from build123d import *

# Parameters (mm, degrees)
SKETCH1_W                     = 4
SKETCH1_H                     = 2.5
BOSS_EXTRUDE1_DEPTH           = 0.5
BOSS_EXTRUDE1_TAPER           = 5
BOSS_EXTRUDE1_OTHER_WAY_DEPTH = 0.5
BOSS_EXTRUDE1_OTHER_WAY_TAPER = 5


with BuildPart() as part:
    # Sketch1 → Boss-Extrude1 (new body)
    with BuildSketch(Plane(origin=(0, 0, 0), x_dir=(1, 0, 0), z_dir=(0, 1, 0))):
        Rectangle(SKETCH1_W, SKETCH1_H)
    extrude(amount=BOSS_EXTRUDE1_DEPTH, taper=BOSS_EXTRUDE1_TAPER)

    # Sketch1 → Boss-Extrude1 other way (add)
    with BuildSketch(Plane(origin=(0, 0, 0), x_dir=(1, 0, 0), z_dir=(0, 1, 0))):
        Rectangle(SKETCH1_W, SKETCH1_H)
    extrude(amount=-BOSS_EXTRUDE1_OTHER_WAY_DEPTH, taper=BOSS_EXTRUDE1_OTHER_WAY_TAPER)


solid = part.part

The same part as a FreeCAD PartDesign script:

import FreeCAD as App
import Part
import Sketcher

V = App.Vector
Q = App.Units.Quantity


def add_polygon(sketch, points):
    """Adds a closed chain of lines whose ends are joined by coincident constraints."""
    first, n = sketch.GeometryCount, len(points)
    for a, b in zip(points, points[1:] + points[:1]):
        sketch.addGeometry(Part.LineSegment(App.Vector(*a, 0), App.Vector(*b, 0)), False)
    for i in range(n):
        sketch.addConstraint(Sketcher.Constraint("Coincident", first + i, 2, first + (i + 1) % n, 1))

doc = App.newDocument("Part")
body = doc.addObject("PartDesign::Body", "Body")

# Sketch on XZ plane
sketch1 = doc.addObject("Sketcher::SketchObject", "Sketch")
body.addObject(sketch1)
sketch1.AttachmentSupport = (doc.XZ_Plane, [""])
sketch1.MapMode = "FlatFace"
add_polygon(sketch1, [(-2, -1.2), (-2, 1.2), (2, 1.2), (2, -1.2)])  # lines 0-3
sketch1.addConstraint(Sketcher.Constraint("Vertical", 0))
sketch1.addConstraint(Sketcher.Constraint("Horizontal", 1))
sketch1.addConstraint(Sketcher.Constraint("Vertical", 2))
sketch1.addConstraint(Sketcher.Constraint("Horizontal", 3))
sketch1.addConstraint(Sketcher.Constraint("Symmetric", 0, 2, 2, 2, -1, 1))
sketch1.addConstraint(Sketcher.Constraint("DistanceX", 1, 1, 1, 2, Q("4 mm")))
sketch1.addConstraint(Sketcher.Constraint("DistanceY", 0, 1, 0, 2, Q("2.5 mm")))
pad1 = doc.addObject("PartDesign::Pad", "Pad")
body.addObject(pad1)
pad1.Profile = sketch1
pad1.Length = 0.5
pad1.Reversed = True
pad1.TaperAngle = -5

# Sketch on XZ plane
sketch2 = doc.addObject("Sketcher::SketchObject", "Sketch001")
body.addObject(sketch2)
sketch2.AttachmentSupport = (doc.XZ_Plane, [""])
sketch2.MapMode = "FlatFace"
add_polygon(sketch2, [(-2, -1.2), (-2, 1.2), (2, 1.2), (2, -1.2)])  # lines 0-3
sketch2.addConstraint(Sketcher.Constraint("Vertical", 0))
sketch2.addConstraint(Sketcher.Constraint("Horizontal", 1))
sketch2.addConstraint(Sketcher.Constraint("Vertical", 2))
sketch2.addConstraint(Sketcher.Constraint("Horizontal", 3))
sketch2.addConstraint(Sketcher.Constraint("Symmetric", 0, 2, 2, 2, -1, 1))
sketch2.addConstraint(Sketcher.Constraint("DistanceX", 1, 1, 1, 2, Q("4 mm")))
sketch2.addConstraint(Sketcher.Constraint("DistanceY", 0, 1, 0, 2, Q("2.5 mm")))
pad2 = doc.addObject("PartDesign::Pad", "Pad001")
body.addObject(pad2)
pad2.Profile = sketch2
pad2.Length = 0.5
pad2.TaperAngle = -5

doc.recompute()
